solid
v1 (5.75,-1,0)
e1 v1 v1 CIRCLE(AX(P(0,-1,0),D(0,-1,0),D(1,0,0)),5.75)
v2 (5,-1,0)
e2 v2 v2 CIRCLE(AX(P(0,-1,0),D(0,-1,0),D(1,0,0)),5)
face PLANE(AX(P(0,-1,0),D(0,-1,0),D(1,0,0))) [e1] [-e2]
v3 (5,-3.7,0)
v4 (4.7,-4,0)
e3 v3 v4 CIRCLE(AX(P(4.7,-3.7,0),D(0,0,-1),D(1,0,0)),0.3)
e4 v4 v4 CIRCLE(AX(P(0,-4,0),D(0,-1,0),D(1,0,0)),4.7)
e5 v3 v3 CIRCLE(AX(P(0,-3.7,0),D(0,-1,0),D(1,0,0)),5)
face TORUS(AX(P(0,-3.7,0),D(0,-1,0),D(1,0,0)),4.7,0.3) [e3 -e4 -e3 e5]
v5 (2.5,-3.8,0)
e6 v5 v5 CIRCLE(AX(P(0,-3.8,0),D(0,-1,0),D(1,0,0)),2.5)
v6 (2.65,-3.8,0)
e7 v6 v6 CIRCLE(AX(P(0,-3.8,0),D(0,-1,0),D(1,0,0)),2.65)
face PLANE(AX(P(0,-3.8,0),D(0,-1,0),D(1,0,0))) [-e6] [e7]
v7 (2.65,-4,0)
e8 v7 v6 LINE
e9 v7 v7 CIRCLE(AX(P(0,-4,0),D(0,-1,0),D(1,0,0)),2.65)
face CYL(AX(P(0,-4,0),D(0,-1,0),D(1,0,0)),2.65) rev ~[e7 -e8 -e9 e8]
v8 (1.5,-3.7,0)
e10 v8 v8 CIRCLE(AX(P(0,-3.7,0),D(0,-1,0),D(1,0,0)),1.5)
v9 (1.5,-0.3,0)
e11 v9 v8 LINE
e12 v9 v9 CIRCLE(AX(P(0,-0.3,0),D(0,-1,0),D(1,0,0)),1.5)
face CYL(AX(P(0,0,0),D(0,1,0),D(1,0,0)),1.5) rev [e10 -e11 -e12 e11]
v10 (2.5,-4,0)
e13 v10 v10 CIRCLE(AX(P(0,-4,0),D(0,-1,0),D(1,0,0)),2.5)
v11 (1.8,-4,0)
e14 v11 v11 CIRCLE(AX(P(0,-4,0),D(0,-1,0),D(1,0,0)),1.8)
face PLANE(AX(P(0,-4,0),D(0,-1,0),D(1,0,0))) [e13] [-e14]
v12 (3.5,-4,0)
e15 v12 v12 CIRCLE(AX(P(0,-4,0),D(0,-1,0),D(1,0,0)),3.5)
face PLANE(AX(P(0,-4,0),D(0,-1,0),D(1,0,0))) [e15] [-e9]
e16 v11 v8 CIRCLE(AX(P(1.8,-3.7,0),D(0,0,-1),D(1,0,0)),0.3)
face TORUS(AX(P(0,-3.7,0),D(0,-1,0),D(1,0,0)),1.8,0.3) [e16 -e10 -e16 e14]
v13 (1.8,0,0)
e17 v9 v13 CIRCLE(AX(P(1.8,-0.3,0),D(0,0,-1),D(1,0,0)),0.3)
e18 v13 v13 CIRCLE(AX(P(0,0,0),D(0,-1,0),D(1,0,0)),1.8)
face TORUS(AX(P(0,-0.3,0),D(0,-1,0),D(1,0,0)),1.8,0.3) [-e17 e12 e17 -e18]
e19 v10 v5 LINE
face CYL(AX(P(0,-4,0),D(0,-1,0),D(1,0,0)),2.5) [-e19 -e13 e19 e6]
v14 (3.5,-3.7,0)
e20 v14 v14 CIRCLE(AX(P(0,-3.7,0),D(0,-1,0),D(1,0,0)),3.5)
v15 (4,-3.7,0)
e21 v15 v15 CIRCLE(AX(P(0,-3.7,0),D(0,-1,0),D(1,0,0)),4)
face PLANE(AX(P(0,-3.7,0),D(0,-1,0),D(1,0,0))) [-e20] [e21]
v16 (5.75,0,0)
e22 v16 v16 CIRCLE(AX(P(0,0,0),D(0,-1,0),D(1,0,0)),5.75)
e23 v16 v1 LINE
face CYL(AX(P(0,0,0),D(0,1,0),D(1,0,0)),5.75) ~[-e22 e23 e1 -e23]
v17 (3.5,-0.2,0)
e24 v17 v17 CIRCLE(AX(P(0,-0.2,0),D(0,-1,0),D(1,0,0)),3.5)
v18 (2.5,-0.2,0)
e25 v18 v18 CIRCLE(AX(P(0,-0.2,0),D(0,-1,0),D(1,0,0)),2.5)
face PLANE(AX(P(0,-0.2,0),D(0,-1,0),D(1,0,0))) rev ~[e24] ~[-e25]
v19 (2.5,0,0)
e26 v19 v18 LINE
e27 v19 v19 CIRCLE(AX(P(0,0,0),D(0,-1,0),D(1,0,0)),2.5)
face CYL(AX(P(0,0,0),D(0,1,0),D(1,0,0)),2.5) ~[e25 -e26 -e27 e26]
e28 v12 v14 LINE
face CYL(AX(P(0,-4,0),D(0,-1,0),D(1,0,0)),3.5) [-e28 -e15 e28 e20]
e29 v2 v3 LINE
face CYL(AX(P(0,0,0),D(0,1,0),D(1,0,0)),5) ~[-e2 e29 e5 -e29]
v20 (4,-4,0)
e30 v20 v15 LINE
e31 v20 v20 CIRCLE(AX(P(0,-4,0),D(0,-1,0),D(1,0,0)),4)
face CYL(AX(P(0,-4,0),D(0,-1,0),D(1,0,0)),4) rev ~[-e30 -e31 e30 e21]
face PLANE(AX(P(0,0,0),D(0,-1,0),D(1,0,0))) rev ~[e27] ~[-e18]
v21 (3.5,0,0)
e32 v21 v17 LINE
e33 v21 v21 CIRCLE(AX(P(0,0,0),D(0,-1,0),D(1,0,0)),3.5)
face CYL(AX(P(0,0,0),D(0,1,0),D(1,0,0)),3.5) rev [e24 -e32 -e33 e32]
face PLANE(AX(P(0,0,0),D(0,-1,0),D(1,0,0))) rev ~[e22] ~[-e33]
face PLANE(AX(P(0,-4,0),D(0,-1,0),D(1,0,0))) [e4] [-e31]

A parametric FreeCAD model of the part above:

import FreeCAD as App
import Part
import Sketcher

V = App.Vector


def edges_at(feature, points):
    """Names of the edges that pass closest to the given points."""
    edges = feature.Shape.Edges
    near = lambda p: min(range(len(edges)), key=lambda i: edges[i].distToShape(Part.Vertex(*p))[0])
    return sorted({f"Edge{near(p) + 1}" for p in points})

doc = App.newDocument("Part")
body = doc.addObject("PartDesign::Body", "Body")

# Sketch on XZ plane
sketch1 = body.newObject("Sketcher::SketchObject", "Sketch")
sketch1.AttachmentSupport = (doc.getObject("XZ_Plane"), [""])
sketch1.MapMode = "FlatFace"
sketch1.addGeometry([
    Part.Circle(V(0, 0, 0), V(0, 0, 1), 6),
    Part.Circle(V(0, 0, 0), V(0, 0, 1), 5),
], False)
sketch1.addConstraint([
    Sketcher.Constraint("Coincident", 0, 3, -1, 1),
    Sketcher.Constraint("Coincident", 1, 3, -1, 1),
    Sketcher.Constraint("Diameter", 1, 10.0),
    Sketcher.Constraint("Diameter", 0, 11.5),
])
pad1 = body.newObject("PartDesign::Pad", "Pad")
pad1.Profile = sketch1
pad1.Length = 1

# Sketch on XZ plane
sketch2 = body.newObject("Sketcher::SketchObject", "Sketch001")
sketch2.AttachmentSupport = (doc.getObject("XZ_Plane"), [""])
sketch2.MapMode = "FlatFace"
sketch2.addGeometry([
    Part.Circle(V(0, 0, 0), V(0, 0, 1), 5),
    Part.Circle(V(0, 0, 0), V(0, 0, 1), 1.5),
], False)
sketch2.addConstraint([
    Sketcher.Constraint("Coincident", 0, 3, -1, 1),
    Sketcher.Constraint("Coincident", 1, 3, -1, 1),
    Sketcher.Constraint("Diameter", 0, 10.0),
    Sketcher.Constraint("Diameter", 1, 3.0),
])
pad2 = body.newObject("PartDesign::Pad", "Pad001")
pad2.Profile = sketch2
pad2.Length = 4
doc.recompute()

fillet = body.newObject("PartDesign::Fillet", "Fillet")
fillet.Base = (pad2, edges_at(pad2, [(-5, -4, 0), (-1.5, -4, 0), (-1.5, 0, 0)]))
fillet.Radius = 0.3

# Sketch on XZ plane
sketch3 = body.newObject("Sketcher::SketchObject", "Sketch002")
sketch3.AttachmentSupport = (doc.getObject("XZ_Plane"), [""])
sketch3.MapMode = "FlatFace"
sketch3.AttachmentOffset = App.Placement(V(0, 0, 4), App.Rotation())
sketch3.addGeometry([
    Part.Circle(V(0, 0, 0), V(0, 0, 1), 2.6),
    Part.Circle(V(0, 0, 0), V(0, 0, 1), 2.5),
], False)
sketch3.addConstraint([
    Sketcher.Constraint("Coincident", 0, 3, -1, 1),
    Sketcher.Constraint("Coincident", 1, 3, -1, 1),
    Sketcher.Constraint("Diameter", 1, 5.0),
    Sketcher.Constraint("Diameter", 0, 5.3),
])
pocket1 = body.newObject("PartDesign::Pocket", "Pocket")
pocket1.Profile = sketch3
pocket1.Length = 0.2

# Sketch on XZ plane
sketch4 = body.newObject("Sketcher::SketchObject", "Sketch003")
sketch4.AttachmentSupport = (doc.getObject("XZ_Plane"), [""])
sketch4.MapMode = "FlatFace"
sketch4.AttachmentOffset = App.Placement(V(0, 0, 4), App.Rotation())
sketch4.addGeometry([
    Part.Circle(V(0, 0, 0), V(0, 0, 1), 4),
    Part.Circle(V(0, 0, 0), V(0, 0, 1), 3.5),
], False)
sketch4.addConstraint([
    Sketcher.Constraint("Coincident", 0, 3, -1, 1),
    Sketcher.Constraint("Coincident", 1, 3, -1, 1),
    Sketcher.Constraint("Diameter", 0, 8.0),
    Sketcher.Constraint("Diameter", 1, 7.0),
])
pocket2 = body.newObject("PartDesign::Pocket", "Pocket001")
pocket2.Profile = sketch4
pocket2.Length = 0.3

# Sketch on XZ plane
sketch5 = body.newObject("Sketcher::SketchObject", "Sketch004")
sketch5.AttachmentSupport = (doc.getObject("XZ_Plane"), [""])
sketch5.MapMode = "FlatFace"
sketch5.addGeometry([
    Part.Circle(V(0, 0, 0), V(0, 0, 1), 3.5),
    Part.Circle(V(0, 0, 0), V(0, 0, 1), 2.5),
], False)
sketch5.addConstraint([
    Sketcher.Constraint("Coincident", 0, 3, -1, 1),
    Sketcher.Constraint("Coincident", 1, 3, -1, 1),
    Sketcher.Constraint("Diameter", 0, 7.0),
    Sketcher.Constraint("Diameter", 1, 5.0),
])
pocket3 = body.newObject("PartDesign::Pocket", "Pocket002")
pocket3.Profile = sketch5
pocket3.Length = 0.2
pocket3.Reversed = True

doc.recompute()
